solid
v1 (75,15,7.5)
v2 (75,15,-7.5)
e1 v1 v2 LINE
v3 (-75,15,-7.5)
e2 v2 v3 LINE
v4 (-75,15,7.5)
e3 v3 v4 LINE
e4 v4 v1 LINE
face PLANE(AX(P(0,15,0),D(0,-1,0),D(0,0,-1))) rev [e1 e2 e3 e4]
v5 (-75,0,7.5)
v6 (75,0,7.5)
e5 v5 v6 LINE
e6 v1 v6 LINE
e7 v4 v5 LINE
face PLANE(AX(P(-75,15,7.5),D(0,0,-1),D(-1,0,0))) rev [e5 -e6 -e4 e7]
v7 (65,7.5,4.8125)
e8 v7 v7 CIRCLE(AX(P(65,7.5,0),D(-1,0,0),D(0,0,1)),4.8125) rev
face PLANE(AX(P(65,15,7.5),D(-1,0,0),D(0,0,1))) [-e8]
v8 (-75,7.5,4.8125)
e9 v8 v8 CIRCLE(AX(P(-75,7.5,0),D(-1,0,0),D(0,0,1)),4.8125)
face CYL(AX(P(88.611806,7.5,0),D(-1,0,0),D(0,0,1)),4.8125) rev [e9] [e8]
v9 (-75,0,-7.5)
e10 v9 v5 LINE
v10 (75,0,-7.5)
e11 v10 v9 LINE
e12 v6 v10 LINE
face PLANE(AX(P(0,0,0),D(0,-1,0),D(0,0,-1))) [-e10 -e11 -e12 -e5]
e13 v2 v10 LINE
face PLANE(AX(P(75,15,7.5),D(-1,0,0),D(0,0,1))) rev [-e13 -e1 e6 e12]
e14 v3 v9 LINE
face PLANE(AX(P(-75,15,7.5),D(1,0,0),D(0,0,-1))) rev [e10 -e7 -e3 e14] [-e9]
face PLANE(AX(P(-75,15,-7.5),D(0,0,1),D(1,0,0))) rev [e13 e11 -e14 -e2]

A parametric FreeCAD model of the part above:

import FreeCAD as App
import Part
import Sketcher
from FreeCAD import Vector

doc = App.newDocument("Part")
body = doc.addObject("PartDesign::Body", "Body")

# Sketch on XZ plane
sketch1 = body.newObject("Sketcher::SketchObject", "Sketch")
sketch1.AttachmentSupport = (doc.getObject("XZ_Plane"), [""])
sketch1.MapMode = "FlatFace"
sketch1.addGeometry(Part.LineSegment(Vector(-75, -7.5, 0), Vector(-75, 7.5, 0)), False)
sketch1.addGeometry(Part.LineSegment(Vector(-75, 7.5, 0), Vector(75, 7.5, 0)), False)
sketch1.addGeometry(Part.LineSegment(Vector(75, 7.5, 0), Vector(75, -7.5, 0)), False)
sketch1.addGeometry(Part.LineSegment(Vector(75, -7.5, 0), Vector(-75, -7.5, 0)), False)
sketch1.addConstraint(Sketcher.Constraint("Coincident", 0, 2, 1, 1))
sketch1.addConstraint(Sketcher.Constraint("Coincident", 1, 2, 2, 1))
sketch1.addConstraint(Sketcher.Constraint("Coincident", 2, 2, 3, 1))
sketch1.addConstraint(Sketcher.Constraint("Coincident", 3, 2, 0, 1))
sketch1.addConstraint(Sketcher.Constraint("Vertical", 0))
sketch1.addConstraint(Sketcher.Constraint("Horizontal", 1))
sketch1.addConstraint(Sketcher.Constraint("Vertical", 2))
sketch1.addConstraint(Sketcher.Constraint("Horizontal", 3))
sketch1.addConstraint(Sketcher.Constraint("Symmetric", 0, 2, 2, 2, -1, 1))
sketch1.addConstraint(Sketcher.Constraint("DistanceX", 1, 1, 1, 2, 150.0))
sketch1.addConstraint(Sketcher.Constraint("DistanceY", 0, 1, 0, 2, 15.0))
pad1 = body.newObject("PartDesign::Pad", "Pad")
pad1.Profile = sketch1
pad1.Length = 15
pad1.Reversed = True

# Sketch on YZ plane
sketch2 = body.newObject("Sketcher::SketchObject", "Sketch001")
sketch2.AttachmentSupport = (doc.getObject("YZ_Plane"), [""])
sketch2.MapMode = "FlatFace"
sketch2.AttachmentOffset = App.Placement(Vector(0, 0, -75), App.Rotation())
sketch2.addGeometry(Part.Circle(Vector(7.5, 0, 0), Vector(0, 0, 1), 4.8125), False)
sketch2.addConstraint(Sketcher.Constraint("PointOnObject", 0, 3, -1))
sketch2.addConstraint(Sketcher.Constraint("Diameter", 0, 9.625))
sketch2.addConstraint(Sketcher.Constraint("DistanceX", -1, 1, 0, 3, 7.5))
pocket1 = body.newObject("PartDesign::Pocket", "Pocket")
pocket1.Profile = sketch2
pocket1.Length = 140
pocket1.Reversed = True

doc.recompute()
